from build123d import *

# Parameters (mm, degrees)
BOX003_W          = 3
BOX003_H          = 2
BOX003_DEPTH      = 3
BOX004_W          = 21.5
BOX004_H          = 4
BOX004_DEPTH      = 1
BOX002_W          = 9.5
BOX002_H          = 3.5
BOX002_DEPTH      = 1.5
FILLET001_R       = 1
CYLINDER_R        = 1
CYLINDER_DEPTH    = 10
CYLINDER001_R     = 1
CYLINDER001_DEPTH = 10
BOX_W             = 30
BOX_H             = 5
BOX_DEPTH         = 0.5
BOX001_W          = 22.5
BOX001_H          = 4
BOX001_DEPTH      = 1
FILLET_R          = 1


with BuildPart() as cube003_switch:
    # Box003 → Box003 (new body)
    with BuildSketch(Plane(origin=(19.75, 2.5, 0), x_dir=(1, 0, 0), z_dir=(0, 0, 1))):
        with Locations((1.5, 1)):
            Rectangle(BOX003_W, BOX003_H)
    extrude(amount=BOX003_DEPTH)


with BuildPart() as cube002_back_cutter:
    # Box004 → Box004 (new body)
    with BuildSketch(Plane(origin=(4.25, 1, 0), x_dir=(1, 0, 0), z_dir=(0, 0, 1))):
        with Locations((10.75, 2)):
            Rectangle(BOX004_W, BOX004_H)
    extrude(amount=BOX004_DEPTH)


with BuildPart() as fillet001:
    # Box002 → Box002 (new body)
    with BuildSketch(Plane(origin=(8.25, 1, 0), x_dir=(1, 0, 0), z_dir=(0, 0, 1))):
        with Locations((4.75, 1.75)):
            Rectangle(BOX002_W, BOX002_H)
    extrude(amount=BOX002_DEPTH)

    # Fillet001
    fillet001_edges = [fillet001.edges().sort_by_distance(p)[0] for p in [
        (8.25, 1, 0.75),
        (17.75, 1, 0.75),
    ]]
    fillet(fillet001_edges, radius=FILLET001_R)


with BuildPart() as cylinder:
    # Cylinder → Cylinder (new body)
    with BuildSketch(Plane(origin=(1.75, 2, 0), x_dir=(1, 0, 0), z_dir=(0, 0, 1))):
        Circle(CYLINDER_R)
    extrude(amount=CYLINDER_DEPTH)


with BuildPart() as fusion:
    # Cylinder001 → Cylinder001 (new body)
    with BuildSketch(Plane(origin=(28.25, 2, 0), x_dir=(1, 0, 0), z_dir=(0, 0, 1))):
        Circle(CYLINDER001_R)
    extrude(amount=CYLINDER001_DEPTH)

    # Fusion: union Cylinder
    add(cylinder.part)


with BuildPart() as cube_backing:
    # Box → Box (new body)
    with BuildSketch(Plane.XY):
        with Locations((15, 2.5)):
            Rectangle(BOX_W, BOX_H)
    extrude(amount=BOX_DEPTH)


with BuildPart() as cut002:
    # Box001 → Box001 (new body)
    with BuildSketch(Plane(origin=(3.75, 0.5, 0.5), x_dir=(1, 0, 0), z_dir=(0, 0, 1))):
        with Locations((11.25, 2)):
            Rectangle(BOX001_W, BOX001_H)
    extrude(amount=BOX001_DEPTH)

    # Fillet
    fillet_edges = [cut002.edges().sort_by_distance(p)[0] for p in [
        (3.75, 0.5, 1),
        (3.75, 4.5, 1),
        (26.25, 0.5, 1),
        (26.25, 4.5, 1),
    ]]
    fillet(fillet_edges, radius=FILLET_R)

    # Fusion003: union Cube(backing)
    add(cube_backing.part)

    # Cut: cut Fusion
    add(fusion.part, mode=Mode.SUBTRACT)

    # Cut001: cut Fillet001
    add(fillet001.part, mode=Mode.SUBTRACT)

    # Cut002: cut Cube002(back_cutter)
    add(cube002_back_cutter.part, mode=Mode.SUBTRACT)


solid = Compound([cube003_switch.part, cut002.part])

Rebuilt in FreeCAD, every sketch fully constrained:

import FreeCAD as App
import Part
import Sketcher
Q = App.Units.Quantity


def edges_at(feature, points):
    """Names of the edges that pass closest to the given points."""
    edges = feature.Shape.Edges
    near = lambda p: min(range(len(edges)), key=lambda i: edges[i].distToShape(Part.Vertex(*p))[0])
    return sorted({f"Edge{near(p) + 1}" for p in points})

doc = App.newDocument("Part")
body = doc.addObject("PartDesign::Body", "Body")

# Sketch on XY plane
sketch1 = doc.addObject("Sketcher::SketchObject", "Sketch")
body.addObject(sketch1)
sketch1.AttachmentSupport = (doc.XY_Plane, [""])
sketch1.MapMode = "FlatFace"
sketch1.addGeometry([
    Part.LineSegment(App.Vector(19.8, 4.5, 0), App.Vector(19.8, 2.5, 0)),
    Part.LineSegment(App.Vector(19.8, 2.5, 0), App.Vector(22.8, 2.5, 0)),
    Part.LineSegment(App.Vector(22.8, 2.5, 0), App.Vector(22.8, 4.5, 0)),
    Part.LineSegment(App.Vector(22.8, 4.5, 0), App.Vector(19.8, 4.5, 0)),
], False)
sketch1.addConstraint([
    Sketcher.Constraint("Coincident", 0, 2, 1, 1),
    Sketcher.Constraint("Coincident", 1, 2, 2, 1),
    Sketcher.Constraint("Coincident", 2, 2, 3, 1),
    Sketcher.Constraint("Coincident", 3, 2, 0, 1),
    Sketcher.Constraint("Vertical", 0),
    Sketcher.Constraint("Horizontal", 1),
    Sketcher.Constraint("Vertical", 2),
    Sketcher.Constraint("Horizontal", 3),
    Sketcher.Constraint("DistanceX", 1, 1, 1, 2, Q("3 mm")),
    Sketcher.Constraint("DistanceY", 0, 2, 0, 1, Q("2 mm")),
    Sketcher.Constraint("DistanceY", -1, 1, 0, 2, Q("2.5 mm")),
    Sketcher.Constraint("DistanceX", -1, 1, 0, 2, Q("19.75 mm")),
])
pad1 = doc.addObject("PartDesign::Pad", "Pad")
body.addObject(pad1)
pad1.Profile = sketch1
pad1.Length = 3
body2 = doc.addObject("PartDesign::Body", "Body001")

# Sketch on XY plane
sketch2 = doc.addObject("Sketcher::SketchObject", "Sketch001")
body2.addObject(sketch2)
sketch2.AttachmentSupport = (doc.getObject("XY_Plane001"), [""])
sketch2.MapMode = "FlatFace"
sketch2.addGeometry([
    Part.LineSegment(App.Vector(4.2, 5, 0), App.Vector(4.2, 1, 0)),
    Part.LineSegment(App.Vector(4.2, 1, 0), App.Vector(25.8, 1, 0)),
    Part.LineSegment(App.Vector(25.8, 1, 0), App.Vector(25.8, 5, 0)),
    Part.LineSegment(App.Vector(25.8, 5, 0), App.Vector(4.2, 5, 0)),
], False)
sketch2.addConstraint([
    Sketcher.Constraint("Coincident", 0, 2, 1, 1),
    Sketcher.Constraint("Coincident", 1, 2, 2, 1),
    Sketcher.Constraint("Coincident", 2, 2, 3, 1),
    Sketcher.Constraint("Coincident", 3, 2, 0, 1),
    Sketcher.Constraint("Vertical", 0),
    Sketcher.Constraint("Horizontal", 1),
    Sketcher.Constraint("Vertical", 2),
    Sketcher.Constraint("Horizontal", 3),
    Sketcher.Constraint("DistanceY", 0, 2, 0, 1, Q("4 mm")),
    Sketcher.Constraint("DistanceX", 1, 1, 1, 2, Q("21.5 mm")),
    Sketcher.Constraint("DistanceY", -1, 1, 0, 2, Q("1 mm")),
    Sketcher.Constraint("DistanceX", -1, 1, 0, 2, Q("4.25 mm")),
])
pad2 = doc.addObject("PartDesign::Pad", "Pad001")
body2.addObject(pad2)
pad2.Profile = sketch2
pad2.Length = 1
body3 = doc.addObject("PartDesign::Body", "Body002")

# Sketch on XY plane
sketch3 = doc.addObject("Sketcher::SketchObject", "Sketch002")
body3.addObject(sketch3)
sketch3.AttachmentSupport = (doc.getObject("XY_Plane002"), [""])
sketch3.MapMode = "FlatFace"
sketch3.addGeometry([
    Part.LineSegment(App.Vector(8.2, 4.5, 0), App.Vector(8.2, 1, 0)),
    Part.LineSegment(App.Vector(8.2, 1, 0), App.Vector(17.8, 1, 0)),
    Part.LineSegment(App.Vector(17.8, 1, 0), App.Vector(17.8, 4.5, 0)),
    Part.LineSegment(App.Vector(17.8, 4.5, 0), App.Vector(8.2, 4.5, 0)),
], False)
sketch3.addConstraint([
    Sketcher.Constraint("Coincident", 0, 2, 1, 1),
    Sketcher.Constraint("Coincident", 1, 2, 2, 1),
    Sketcher.Constraint("Coincident", 2, 2, 3, 1),
    Sketcher.Constraint("Coincident", 3, 2, 0, 1),
    Sketcher.Constraint("Vertical", 0),
    Sketcher.Constraint("Horizontal", 1),
    Sketcher.Constraint("Vertical", 2),
    Sketcher.Constraint("Horizontal", 3),
    Sketcher.Constraint("DistanceX", 1, 1, 1, 2, Q("9.5 mm")),
    Sketcher.Constraint("DistanceY", 0, 2, 0, 1, Q("3.5 mm")),
    Sketcher.Constraint("DistanceY", -1, 1, 0, 2, Q("1 mm")),
    Sketcher.Constraint("DistanceX", -1, 1, 0, 2, Q("8.25 mm")),
])
pad3 = doc.addObject("PartDesign::Pad", "Pad002")
body3.addObject(pad3)
pad3.Profile = sketch3
pad3.Length = 1.5
doc.recompute()

fillet = doc.addObject("PartDesign::Fillet", "Fillet")
body3.addObject(fillet)
fillet.Base = (pad3, edges_at(pad3, [(8.25, 1, 0.75), (17.75, 1, 0.75)]))
fillet.Radius = 1
body4 = doc.addObject("PartDesign::Body", "Body003")

# Sketch on XY plane
sketch4 = doc.addObject("Sketcher::SketchObject", "Sketch003")
body4.addObject(sketch4)
sketch4.AttachmentSupport = (doc.getObject("XY_Plane003"), [""])
sketch4.MapMode = "FlatFace"
sketch4.addGeometry(Part.Circle(App.Vector(1.8, 2, 0), App.Vector(0, 0, 1), 1), False)
sketch4.addConstraint([
    Sketcher.Constraint("Diameter", 0, Q("2 mm")),
    Sketcher.Constraint("DistanceY", -1, 1, 0, 3, Q("2 mm")),
    Sketcher.Constraint("DistanceX", -1, 1, 0, 3, Q("1.75 mm")),
])
pad4 = doc.addObject("PartDesign::Pad", "Pad003")
body4.addObject(pad4)
pad4.Profile = sketch4
pad4.Length = 10
body5 = doc.addObject("PartDesign::Body", "Body004")
body5.AllowCompound = True

# Sketch on XY plane
sketch5 = doc.addObject("Sketcher::SketchObject", "Sketch004")
body5.addObject(sketch5)
sketch5.AttachmentSupport = (doc.getObject("XY_Plane004"), [""])
sketch5.MapMode = "FlatFace"
sketch5.addGeometry(Part.Circle(App.Vector(28.2, 2, 0), App.Vector(0, 0, 1), 1), False)
sketch5.addConstraint([
    Sketcher.Constraint("Diameter", 0, Q("2 mm")),
    Sketcher.Constraint("DistanceY", -1, 1, 0, 3, Q("2 mm")),
    Sketcher.Constraint("DistanceX", -1, 1, 0, 3, Q("28.25 mm")),
])
pad5 = doc.addObject("PartDesign::Pad", "Pad004")
body5.addObject(pad5)
pad5.Profile = sketch5
pad5.Length = 10
doc.recompute()

boolean = doc.addObject("PartDesign::Boolean", "Boolean")
body5.addObject(boolean)
boolean.Type = "Fuse"
boolean.addObjects([body4])
body6 = doc.addObject("PartDesign::Body", "Body005")

# Sketch on XY plane
sketch6 = doc.addObject("Sketcher::SketchObject", "Sketch005")
body6.addObject(sketch6)
sketch6.AttachmentSupport = (doc.getObject("XY_Plane005"), [""])
sketch6.MapMode = "FlatFace"
sketch6.addGeometry([
    Part.LineSegment(App.Vector(0, 5, 0), App.Vector(0, 0, 0)),
    Part.LineSegment(App.Vector(0, 0, 0), App.Vector(30, 0, 0)),
    Part.LineSegment(App.Vector(30, 0, 0), App.Vector(30, 5, 0)),
    Part.LineSegment(App.Vector(30, 5, 0), App.Vector(0, 5, 0)),
], False)
sketch6.addConstraint([
    Sketcher.Constraint("Coincident", 0, 2, 1, 1),
    Sketcher.Constraint("Coincident", 1, 2, 2, 1),
    Sketcher.Constraint("Coincident", 2, 2, 3, 1),
    Sketcher.Constraint("Coincident", 3, 2, 0, 1),
    Sketcher.Constraint("Vertical", 0),
    Sketcher.Constraint("Horizontal", 1),
    Sketcher.Constraint("Vertical", 2),
    Sketcher.Constraint("Horizontal", 3),
    Sketcher.Constraint("Coincident", 0, 2, -1, 1),
    Sketcher.Constraint("DistanceX", 1, 1, 1, 2, Q("30 mm")),
    Sketcher.Constraint("DistanceY", 0, 2, 0, 1, Q("5 mm")),
])
pad6 = doc.addObject("PartDesign::Pad", "Pad005")
body6.addObject(pad6)
pad6.Profile = sketch6
pad6.Length = 0.5
body7 = doc.addObject("PartDesign::Body", "Body006")

# Sketch on XY plane
sketch7 = doc.addObject("Sketcher::SketchObject", "Sketch006")
body7.addObject(sketch7)
sketch7.AttachmentSupport = (doc.getObject("XY_Plane006"), [""])
sketch7.MapMode = "FlatFace"
sketch7.AttachmentOffset = App.Placement(App.Vector(0, 0, 0.5), App.Rotation())
sketch7.addGeometry([
    Part.LineSegment(App.Vector(3.8, 4.5, 0), App.Vector(3.8, 0.5, 0)),
    Part.LineSegment(App.Vector(3.8, 0.5, 0), App.Vector(26.2, 0.5, 0)),
    Part.LineSegment(App.Vector(26.2, 0.5, 0), App.Vector(26.2, 4.5, 0)),
    Part.LineSegment(App.Vector(26.2, 4.5, 0), App.Vector(3.8, 4.5, 0)),
], False)
sketch7.addConstraint([
    Sketcher.Constraint("Coincident", 0, 2, 1, 1),
    Sketcher.Constraint("Coincident", 1, 2, 2, 1),
    Sketcher.Constraint("Coincident", 2, 2, 3, 1),
    Sketcher.Constraint("Coincident", 3, 2, 0, 1),
    Sketcher.Constraint("Vertical", 0),
    Sketcher.Constraint("Horizontal", 1),
    Sketcher.Constraint("Vertical", 2),
    Sketcher.Constraint("Horizontal", 3),
    Sketcher.Constraint("DistanceY", 0, 2, 0, 1, Q("4 mm")),
    Sketcher.Constraint("DistanceX", 1, 1, 1, 2, Q("22.5 mm")),
    Sketcher.Constraint("DistanceY", -1, 1, 0, 2, Q("0.5 mm")),
    Sketcher.Constraint("DistanceX", -1, 1, 0, 2, Q("3.75 mm")),
])
pad7 = doc.addObject("PartDesign::Pad", "Pad006")
body7.addObject(pad7)
pad7.Profile = sketch7
pad7.Length = 1
doc.recompute()

fillet2 = doc.addObject("PartDesign::Fillet", "Fillet001")
body7.addObject(fillet2)
fillet2.Base = (pad7, edges_at(pad7, [
    (3.75, 0.5, 1),
    (3.75, 4.5, 1),
    (26.25, 0.5, 1),
    (26.25, 4.5, 1),
]))
fillet2.Radius = 1
doc.recompute()

boolean2 = doc.addObject("PartDesign::Boolean", "Boolean001")
body7.addObject(boolean2)
boolean2.Type = "Fuse"
boolean2.addObjects([body6])
doc.recompute()

boolean3 = doc.addObject("PartDesign::Boolean", "Boolean002")
body7.addObject(boolean3)
boolean3.Type = "Cut"
boolean3.addObjects([body5])
doc.recompute()

boolean4 = doc.addObject("PartDesign::Boolean", "Boolean003")
body7.addObject(boolean4)
boolean4.Type = "Cut"
boolean4.addObjects([body3])
doc.recompute()

boolean5 = doc.addObject("PartDesign::Boolean", "Boolean004")
body7.addObject(boolean5)
boolean5.Type = "Cut"
boolean5.addObjects([body2])

doc.recompute()
